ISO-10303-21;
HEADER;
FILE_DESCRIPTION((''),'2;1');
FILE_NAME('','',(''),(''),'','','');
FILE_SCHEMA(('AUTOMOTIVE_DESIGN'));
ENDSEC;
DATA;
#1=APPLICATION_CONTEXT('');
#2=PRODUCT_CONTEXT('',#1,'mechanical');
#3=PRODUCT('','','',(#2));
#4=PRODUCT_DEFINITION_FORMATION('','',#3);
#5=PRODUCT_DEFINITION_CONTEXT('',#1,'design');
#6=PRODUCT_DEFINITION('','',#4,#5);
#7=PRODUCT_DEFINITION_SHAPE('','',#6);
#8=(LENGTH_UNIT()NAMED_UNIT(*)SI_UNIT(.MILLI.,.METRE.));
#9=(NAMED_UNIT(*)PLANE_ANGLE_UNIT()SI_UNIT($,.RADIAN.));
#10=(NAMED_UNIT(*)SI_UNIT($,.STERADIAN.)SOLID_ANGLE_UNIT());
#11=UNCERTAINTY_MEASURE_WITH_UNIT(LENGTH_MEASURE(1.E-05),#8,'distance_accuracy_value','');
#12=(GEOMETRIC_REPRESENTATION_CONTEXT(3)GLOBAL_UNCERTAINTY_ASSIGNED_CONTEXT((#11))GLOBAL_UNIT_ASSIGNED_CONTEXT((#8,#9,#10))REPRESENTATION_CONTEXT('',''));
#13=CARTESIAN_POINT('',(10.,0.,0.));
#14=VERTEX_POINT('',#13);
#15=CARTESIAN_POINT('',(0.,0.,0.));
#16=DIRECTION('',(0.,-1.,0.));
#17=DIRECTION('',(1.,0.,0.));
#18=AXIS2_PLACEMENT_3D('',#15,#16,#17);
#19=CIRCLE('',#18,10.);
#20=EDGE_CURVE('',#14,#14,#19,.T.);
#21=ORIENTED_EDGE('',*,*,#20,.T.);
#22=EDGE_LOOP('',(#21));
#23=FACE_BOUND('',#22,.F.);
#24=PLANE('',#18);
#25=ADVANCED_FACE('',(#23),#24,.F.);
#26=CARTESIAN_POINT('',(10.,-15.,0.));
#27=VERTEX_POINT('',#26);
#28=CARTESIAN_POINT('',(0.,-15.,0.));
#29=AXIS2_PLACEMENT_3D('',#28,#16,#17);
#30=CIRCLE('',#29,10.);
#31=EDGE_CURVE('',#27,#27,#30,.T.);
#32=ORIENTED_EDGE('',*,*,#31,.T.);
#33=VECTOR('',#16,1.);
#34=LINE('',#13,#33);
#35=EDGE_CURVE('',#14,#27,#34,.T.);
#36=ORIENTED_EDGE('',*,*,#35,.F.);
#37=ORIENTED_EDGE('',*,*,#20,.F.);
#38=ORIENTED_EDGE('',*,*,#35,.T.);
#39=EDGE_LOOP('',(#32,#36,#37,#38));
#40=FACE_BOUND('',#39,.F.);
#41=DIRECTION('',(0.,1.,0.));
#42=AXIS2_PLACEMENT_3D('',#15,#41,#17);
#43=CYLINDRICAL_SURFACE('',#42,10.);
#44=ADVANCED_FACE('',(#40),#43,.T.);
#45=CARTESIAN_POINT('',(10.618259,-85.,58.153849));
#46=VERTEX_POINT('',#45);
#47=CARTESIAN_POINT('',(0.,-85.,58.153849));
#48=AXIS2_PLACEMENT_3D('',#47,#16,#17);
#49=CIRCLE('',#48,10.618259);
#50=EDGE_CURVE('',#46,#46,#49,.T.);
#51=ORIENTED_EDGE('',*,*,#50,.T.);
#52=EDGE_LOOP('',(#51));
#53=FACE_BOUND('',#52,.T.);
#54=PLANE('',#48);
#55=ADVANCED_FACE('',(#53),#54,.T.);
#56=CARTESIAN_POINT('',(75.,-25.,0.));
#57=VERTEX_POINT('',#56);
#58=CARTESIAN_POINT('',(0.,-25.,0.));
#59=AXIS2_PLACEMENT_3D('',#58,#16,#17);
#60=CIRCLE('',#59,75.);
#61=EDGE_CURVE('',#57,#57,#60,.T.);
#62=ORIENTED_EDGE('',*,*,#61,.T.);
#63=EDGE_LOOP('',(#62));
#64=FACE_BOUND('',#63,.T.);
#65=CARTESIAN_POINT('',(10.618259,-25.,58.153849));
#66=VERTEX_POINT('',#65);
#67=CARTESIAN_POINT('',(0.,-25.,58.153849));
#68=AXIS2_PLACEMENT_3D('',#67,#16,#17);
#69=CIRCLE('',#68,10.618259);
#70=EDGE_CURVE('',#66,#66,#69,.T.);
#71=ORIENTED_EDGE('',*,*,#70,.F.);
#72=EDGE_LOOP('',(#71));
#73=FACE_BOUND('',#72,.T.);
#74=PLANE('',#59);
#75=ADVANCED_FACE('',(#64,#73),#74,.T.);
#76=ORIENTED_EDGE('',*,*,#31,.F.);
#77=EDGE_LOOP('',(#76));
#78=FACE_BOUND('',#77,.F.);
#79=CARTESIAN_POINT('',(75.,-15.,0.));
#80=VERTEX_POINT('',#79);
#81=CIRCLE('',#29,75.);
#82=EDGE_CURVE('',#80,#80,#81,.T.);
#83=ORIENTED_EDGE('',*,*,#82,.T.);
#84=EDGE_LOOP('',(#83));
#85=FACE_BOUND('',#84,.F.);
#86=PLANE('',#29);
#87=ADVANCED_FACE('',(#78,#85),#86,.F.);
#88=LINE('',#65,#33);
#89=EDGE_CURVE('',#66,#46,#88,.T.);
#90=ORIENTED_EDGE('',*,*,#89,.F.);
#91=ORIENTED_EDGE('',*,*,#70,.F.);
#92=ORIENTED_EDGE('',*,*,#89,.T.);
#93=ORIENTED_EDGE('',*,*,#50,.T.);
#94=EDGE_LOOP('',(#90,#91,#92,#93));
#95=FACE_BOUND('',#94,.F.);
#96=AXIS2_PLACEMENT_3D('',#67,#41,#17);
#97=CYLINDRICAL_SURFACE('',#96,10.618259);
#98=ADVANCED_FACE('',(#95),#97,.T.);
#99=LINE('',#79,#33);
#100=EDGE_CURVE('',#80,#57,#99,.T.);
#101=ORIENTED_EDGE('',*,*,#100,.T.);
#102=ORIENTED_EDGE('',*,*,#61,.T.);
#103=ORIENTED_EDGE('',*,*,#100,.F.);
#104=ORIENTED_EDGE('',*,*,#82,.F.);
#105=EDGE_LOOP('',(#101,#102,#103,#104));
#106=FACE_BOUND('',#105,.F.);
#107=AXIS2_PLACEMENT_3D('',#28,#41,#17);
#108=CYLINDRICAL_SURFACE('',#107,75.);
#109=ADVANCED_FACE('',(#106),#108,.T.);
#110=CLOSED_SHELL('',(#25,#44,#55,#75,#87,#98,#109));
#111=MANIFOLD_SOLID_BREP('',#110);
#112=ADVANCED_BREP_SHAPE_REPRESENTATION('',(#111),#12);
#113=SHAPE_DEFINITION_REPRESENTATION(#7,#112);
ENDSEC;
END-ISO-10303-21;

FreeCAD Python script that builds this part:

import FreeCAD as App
import Part
import Sketcher
from FreeCAD import Vector

doc = App.newDocument("Part")
body = doc.addObject("PartDesign::Body", "Body")

# Sketch on XZ plane
sketch1 = body.newObject("Sketcher::SketchObject", "Sketch")
sketch1.AttachmentSupport = (doc.getObject("XZ_Plane"), [""])
sketch1.MapMode = "FlatFace"
sketch1.addGeometry(Part.Circle(Vector(0, 0, 0), Vector(0, 0, 1), 10), False)
sketch1.addConstraint([
    Sketcher.Constraint("Coincident", 0, 3, -1, 1),
    Sketcher.Constraint("Diameter", 0, 20.0),
])
pad1 = body.newObject("PartDesign::Pad", "Pad")
pad1.Profile = sketch1
pad1.Length = 15

# Sketch on XZ plane
sketch2 = body.newObject("Sketcher::SketchObject", "Sketch001")
sketch2.AttachmentSupport = (doc.getObject("XZ_Plane"), [""])
sketch2.MapMode = "FlatFace"
sketch2.AttachmentOffset = App.Placement(Vector(0, 0, 15), App.Rotation())
sketch2.addGeometry(Part.Circle(Vector(0, 0, 0), Vector(0, 0, 1), 75), False)
sketch2.addConstraint([
    Sketcher.Constraint("Coincident", 0, 3, -1, 1),
    Sketcher.Constraint("Diameter", 0, 150.0),
])
pad2 = body.newObject("PartDesign::Pad", "Pad001")
pad2.Profile = sketch2
pad2.Length = 10

# Sketch on XZ plane
sketch3 = body.newObject("Sketcher::SketchObject", "Sketch002")
sketch3.AttachmentSupport = (doc.getObject("XZ_Plane"), [""])
sketch3.MapMode = "FlatFace"
sketch3.AttachmentOffset = App.Placement(Vector(0, 0, 25), App.Rotation())
sketch3.addGeometry(Part.Circle(Vector(0, 58.153849, 0), Vector(0, 0, 1), 10.618259), False)
sketch3.addConstraint([
    Sketcher.Constraint("PointOnObject", 0, 3, -2),
    Sketcher.Constraint("Diameter", 0, 21.236518),
    Sketcher.Constraint("DistanceY", -1, 1, 0, 3, 58.153849),
])
pad3 = body.newObject("PartDesign::Pad", "Pad002")
pad3.Profile = sketch3
pad3.Length = 60

doc.recompute()
